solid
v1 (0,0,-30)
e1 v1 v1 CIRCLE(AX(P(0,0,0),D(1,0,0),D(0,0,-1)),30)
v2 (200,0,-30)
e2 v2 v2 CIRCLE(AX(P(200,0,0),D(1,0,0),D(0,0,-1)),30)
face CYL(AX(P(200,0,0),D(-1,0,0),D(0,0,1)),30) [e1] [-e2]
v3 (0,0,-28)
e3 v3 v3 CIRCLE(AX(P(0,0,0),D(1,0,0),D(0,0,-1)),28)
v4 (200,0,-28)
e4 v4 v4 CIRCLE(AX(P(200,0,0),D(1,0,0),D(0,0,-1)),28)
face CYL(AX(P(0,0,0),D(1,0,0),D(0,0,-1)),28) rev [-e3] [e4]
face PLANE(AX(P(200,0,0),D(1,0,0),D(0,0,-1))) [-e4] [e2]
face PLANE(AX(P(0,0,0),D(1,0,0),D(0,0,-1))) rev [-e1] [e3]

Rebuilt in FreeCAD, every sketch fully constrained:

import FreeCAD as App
import Part
import Sketcher

V = App.Vector
Q = App.Units.Quantity

doc = App.newDocument("Part")
body = doc.addObject("PartDesign::Body", "Body")

sketch1 = doc.addObject("Sketcher::SketchObject", "Sketch")
body.addObject(sketch1)
sketch1.AttachmentSupport = (doc.YZ_Plane, [""])
sketch1.MapMode = "FlatFace"
sketch1.addGeometry(Part.Circle(V(0, 0, 0), V(0, 0, 1), 30), False)
sketch1.addConstraint(Sketcher.Constraint("Coincident", 0, 3, -1, 1))
sketch1.addConstraint(Sketcher.Constraint("Diameter", 0, Q("60 mm")))
pad1 = doc.addObject("PartDesign::Pad", "Pad")
body.addObject(pad1)
pad1.Profile = sketch1
pad1.Length = 200

sketch2 = doc.addObject("Sketcher::SketchObject", "Sketch001")
body.addObject(sketch2)
sketch2.AttachmentSupport = (doc.YZ_Plane, [""])
sketch2.MapMode = "FlatFace"
sketch2.AttachmentOffset = App.Placement(V(0, 0, 200), App.Rotation())
sketch2.addGeometry(Part.Circle(V(0, 0, 0), V(0, 0, 1), 28), False)
sketch2.addConstraint(Sketcher.Constraint("Coincident", 0, 3, -1, 1))
sketch2.addConstraint(Sketcher.Constraint("Diameter", 0, Q("56 mm")))
pocket1 = doc.addObject("PartDesign::Pocket", "Pocket")
body.addObject(pocket1)
pocket1.Profile = sketch2
pocket1.Length = 200

doc.recompute()
